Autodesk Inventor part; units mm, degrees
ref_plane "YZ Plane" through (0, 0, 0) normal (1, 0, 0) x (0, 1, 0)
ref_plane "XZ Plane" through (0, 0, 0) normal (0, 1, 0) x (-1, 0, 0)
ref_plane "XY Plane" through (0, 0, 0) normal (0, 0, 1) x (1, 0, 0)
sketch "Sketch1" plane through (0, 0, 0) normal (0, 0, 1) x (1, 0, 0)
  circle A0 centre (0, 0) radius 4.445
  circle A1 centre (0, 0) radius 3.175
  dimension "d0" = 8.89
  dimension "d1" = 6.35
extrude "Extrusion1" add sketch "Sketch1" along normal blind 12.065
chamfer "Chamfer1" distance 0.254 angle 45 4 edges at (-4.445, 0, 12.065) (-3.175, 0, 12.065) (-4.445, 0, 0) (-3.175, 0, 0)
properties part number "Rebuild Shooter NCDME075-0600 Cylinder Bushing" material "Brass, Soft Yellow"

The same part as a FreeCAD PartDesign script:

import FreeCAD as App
import Part
import Sketcher
from FreeCAD import Vector
Q = App.Units.Quantity


def edges_at(feature, points):
    """Names of the edges that pass closest to the given points."""
    edges = feature.Shape.Edges
    near = lambda p: min(range(len(edges)), key=lambda i: edges[i].distToShape(Part.Vertex(*p))[0])
    return sorted({f"Edge{near(p) + 1}" for p in points})

doc = App.newDocument("Part")
body = doc.addObject("PartDesign::Body", "Body")

# Sketch on XY plane
sketch1 = body.newObject("Sketcher::SketchObject", "Sketch")
sketch1.AttachmentSupport = (doc.getObject("XY_Plane"), [""])
sketch1.MapMode = "FlatFace"
sketch1.addGeometry(Part.Circle(Vector(0, 0, 0), Vector(0, 0, 1), 4.4), False)
sketch1.addGeometry(Part.Circle(Vector(0, 0, 0), Vector(0, 0, 1), 3.2), False)
sketch1.addConstraint(Sketcher.Constraint("Coincident", 0, 3, -1, 1))
sketch1.addConstraint(Sketcher.Constraint("Coincident", 1, 3, -1, 1))
sketch1.addConstraint(Sketcher.Constraint("Diameter", 0, Q("0.35 in")))
sketch1.addConstraint(Sketcher.Constraint("Diameter", 1, Q("0.25 in")))
pad1 = body.newObject("PartDesign::Pad", "Pad")
pad1.Profile = sketch1
pad1.Length = Q("0.475 in")
doc.recompute()

chamfer = body.newObject("PartDesign::Chamfer", "Chamfer")
chamfer.Base = (pad1, edges_at(pad1, [
    (-4.445, 0, 12.065),
    (-3.175, 0, 12.065),
    (-4.445, 0, 0),
    (-3.175, 0, 0),
]))
chamfer.Size = Q("0.01 in")

doc.recompute()
